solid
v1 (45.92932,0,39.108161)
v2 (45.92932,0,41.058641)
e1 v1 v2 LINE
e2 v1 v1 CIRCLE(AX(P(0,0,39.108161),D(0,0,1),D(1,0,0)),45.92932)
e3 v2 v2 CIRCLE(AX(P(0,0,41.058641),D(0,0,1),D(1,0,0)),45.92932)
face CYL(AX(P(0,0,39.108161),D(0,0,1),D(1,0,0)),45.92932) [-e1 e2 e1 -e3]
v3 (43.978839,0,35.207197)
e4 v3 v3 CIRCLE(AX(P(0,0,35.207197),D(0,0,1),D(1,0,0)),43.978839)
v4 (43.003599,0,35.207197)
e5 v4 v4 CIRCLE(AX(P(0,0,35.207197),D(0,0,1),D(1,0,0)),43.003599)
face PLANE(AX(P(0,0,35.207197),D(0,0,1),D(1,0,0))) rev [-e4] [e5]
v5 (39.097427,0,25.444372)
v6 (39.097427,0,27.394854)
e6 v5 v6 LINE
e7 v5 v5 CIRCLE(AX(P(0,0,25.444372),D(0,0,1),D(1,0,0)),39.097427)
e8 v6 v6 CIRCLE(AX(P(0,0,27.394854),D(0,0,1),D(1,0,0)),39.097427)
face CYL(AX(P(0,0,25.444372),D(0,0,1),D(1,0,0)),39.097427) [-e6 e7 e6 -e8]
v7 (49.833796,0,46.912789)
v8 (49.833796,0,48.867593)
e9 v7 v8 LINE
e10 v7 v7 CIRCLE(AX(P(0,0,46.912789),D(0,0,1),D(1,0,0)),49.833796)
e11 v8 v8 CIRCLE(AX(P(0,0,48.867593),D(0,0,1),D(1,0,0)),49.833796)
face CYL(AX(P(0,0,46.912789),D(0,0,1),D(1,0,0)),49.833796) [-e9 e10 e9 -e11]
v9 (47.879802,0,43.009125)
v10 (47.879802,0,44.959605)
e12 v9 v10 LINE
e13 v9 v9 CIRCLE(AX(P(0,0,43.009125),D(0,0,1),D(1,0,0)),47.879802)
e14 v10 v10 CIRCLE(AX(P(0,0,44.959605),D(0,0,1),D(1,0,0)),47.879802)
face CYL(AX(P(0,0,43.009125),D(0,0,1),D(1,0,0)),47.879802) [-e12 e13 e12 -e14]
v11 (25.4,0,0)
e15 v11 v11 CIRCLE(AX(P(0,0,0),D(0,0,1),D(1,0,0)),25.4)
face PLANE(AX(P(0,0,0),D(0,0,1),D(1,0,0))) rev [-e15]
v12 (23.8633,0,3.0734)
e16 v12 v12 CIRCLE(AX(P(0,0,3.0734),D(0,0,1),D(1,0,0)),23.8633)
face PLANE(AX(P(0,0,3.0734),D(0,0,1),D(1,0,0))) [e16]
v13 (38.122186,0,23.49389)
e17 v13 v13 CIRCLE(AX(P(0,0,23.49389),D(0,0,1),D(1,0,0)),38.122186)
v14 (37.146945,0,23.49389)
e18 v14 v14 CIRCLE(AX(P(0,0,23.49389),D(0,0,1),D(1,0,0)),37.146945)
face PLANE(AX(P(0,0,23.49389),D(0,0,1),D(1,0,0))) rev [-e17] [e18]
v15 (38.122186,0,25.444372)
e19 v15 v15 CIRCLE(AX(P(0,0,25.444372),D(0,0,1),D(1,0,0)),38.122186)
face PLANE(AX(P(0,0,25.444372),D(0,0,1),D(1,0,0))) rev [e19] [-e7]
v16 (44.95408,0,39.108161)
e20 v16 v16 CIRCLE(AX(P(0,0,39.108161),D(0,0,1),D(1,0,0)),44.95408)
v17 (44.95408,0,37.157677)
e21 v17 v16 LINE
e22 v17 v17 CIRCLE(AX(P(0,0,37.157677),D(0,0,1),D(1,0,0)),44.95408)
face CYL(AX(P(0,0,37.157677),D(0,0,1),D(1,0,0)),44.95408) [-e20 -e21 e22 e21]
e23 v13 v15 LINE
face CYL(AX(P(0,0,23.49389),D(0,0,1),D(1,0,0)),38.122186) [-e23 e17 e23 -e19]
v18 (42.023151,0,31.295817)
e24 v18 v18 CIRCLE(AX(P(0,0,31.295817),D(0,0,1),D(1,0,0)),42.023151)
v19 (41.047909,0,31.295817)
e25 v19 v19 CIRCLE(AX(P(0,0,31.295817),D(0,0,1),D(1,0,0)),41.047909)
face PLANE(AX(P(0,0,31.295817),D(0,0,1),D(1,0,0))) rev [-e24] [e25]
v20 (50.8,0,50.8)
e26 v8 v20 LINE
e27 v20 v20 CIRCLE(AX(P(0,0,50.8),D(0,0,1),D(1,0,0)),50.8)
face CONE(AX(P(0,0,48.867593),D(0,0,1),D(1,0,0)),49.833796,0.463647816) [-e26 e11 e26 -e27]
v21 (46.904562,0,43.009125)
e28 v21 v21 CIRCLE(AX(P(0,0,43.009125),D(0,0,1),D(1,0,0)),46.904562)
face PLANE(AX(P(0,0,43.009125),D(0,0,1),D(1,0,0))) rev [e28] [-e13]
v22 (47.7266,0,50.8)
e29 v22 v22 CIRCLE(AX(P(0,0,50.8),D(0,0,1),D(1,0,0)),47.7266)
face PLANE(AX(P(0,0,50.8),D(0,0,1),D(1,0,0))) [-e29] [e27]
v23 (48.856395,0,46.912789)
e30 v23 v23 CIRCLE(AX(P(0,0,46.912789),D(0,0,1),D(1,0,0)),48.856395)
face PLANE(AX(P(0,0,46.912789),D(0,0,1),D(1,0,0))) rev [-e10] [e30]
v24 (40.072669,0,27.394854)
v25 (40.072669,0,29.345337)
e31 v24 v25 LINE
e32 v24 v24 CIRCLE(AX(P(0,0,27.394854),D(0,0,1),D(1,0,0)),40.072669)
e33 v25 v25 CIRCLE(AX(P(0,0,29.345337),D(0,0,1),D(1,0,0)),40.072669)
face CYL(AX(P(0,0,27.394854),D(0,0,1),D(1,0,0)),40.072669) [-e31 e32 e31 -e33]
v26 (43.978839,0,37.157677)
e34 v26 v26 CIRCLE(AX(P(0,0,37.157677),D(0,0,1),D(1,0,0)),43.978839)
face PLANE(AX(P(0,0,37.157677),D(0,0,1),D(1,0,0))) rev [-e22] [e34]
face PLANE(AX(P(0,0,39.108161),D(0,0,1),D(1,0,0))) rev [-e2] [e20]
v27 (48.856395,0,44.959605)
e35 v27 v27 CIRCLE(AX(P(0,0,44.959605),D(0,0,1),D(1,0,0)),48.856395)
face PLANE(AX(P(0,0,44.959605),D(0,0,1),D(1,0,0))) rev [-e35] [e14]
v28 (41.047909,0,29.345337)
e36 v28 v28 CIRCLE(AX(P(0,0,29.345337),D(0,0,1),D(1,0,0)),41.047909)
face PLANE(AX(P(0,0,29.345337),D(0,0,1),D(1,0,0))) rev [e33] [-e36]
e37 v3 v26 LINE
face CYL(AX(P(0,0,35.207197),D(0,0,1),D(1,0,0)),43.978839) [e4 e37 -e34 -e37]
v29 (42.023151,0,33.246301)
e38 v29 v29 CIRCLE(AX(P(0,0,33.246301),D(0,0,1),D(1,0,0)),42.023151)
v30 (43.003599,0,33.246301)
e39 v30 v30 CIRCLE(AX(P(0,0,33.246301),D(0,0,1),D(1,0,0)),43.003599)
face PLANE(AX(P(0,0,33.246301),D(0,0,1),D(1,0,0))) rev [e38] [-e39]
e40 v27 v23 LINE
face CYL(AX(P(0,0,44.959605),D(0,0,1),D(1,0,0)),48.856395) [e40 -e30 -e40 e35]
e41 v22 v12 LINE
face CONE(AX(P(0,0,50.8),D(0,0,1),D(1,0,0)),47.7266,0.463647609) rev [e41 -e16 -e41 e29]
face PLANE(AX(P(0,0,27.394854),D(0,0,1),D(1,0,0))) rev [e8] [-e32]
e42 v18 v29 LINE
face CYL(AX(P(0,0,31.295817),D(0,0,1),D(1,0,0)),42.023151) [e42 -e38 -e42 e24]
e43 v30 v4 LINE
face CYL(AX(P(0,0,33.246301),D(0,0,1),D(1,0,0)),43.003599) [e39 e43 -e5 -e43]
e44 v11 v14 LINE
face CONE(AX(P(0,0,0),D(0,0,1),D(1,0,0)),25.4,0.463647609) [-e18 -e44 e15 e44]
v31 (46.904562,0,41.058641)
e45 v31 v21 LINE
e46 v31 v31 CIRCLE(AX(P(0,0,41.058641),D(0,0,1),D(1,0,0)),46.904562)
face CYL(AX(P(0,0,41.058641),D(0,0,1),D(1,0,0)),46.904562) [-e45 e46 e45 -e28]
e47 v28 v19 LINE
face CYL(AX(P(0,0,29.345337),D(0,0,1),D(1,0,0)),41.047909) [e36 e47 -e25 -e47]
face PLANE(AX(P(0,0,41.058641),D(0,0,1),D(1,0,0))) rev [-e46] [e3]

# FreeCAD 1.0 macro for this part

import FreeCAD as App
import Part
import Sketcher

V = App.Vector
Q = App.Units.Quantity


def add_polygon(sketch, points):
    """Adds a closed chain of lines whose ends are joined by coincident constraints."""
    first, n = sketch.GeometryCount, len(points)
    for a, b in zip(points, points[1:] + points[:1]):
        sketch.addGeometry(Part.LineSegment(App.Vector(*a, 0), App.Vector(*b, 0)), False)
    for i in range(n):
        sketch.addConstraint(Sketcher.Constraint("Coincident", first + i, 2, first + (i + 1) % n, 1))

doc = App.newDocument("Part")
params = doc.addObject("Spreadsheet::Sheet", "Params")
for row, (alias, value) in enumerate([
    ("sketch1_width", "1 in"),
    ("sketch1_width2", "0.121 in"),
    ("revolution_angle", "360 deg"),
], start=1):
    params.set(f"A{row}", alias)
    params.set(f"B{row}", "=" + value)
    params.setAlias(f"B{row}", alias)

body = doc.addObject("PartDesign::Body", "Body")

sketch1 = body.newObject("Sketcher::SketchObject", "Sketch")
sketch1.AttachmentSupport = (doc.getObject("XZ_Plane"), [""])
sketch1.MapMode = "FlatFace"
add_polygon(sketch1, [(47.879802, 43.009125), (47.879802, 44.959605), (48.856395, 44.959605), (48.856395, 46.912789), (49.833796, 46.912789), (49.833796, 48.867593), (50.8, 50.8), (47.7266, 50.8), (23.8633, 3.0734), (0, 3.0734), (0, 0), (25.4, 0), (37.146945, 23.49389), (38.122186, 23.49389), (38.122186, 25.444372), (39.097427, 25.444372), (39.097427, 27.394854), (40.072669, 27.394854), (40.072669, 29.345337), (41.047909, 29.345337), (41.047909, 31.295817), (42.023151, 31.295817), (42.023151, 33.246301), (43.003599, 33.246301), (43.003599, 35.207197), (43.978839, 35.207197), (43.978839, 37.157677), (44.95408, 37.157677), (44.95408, 39.108161), (45.92932, 39.108161), (45.92932, 41.058641), (46.904562, 41.058641), (46.904562, 43.009125)])
sketch1.addConstraint([
    Sketcher.Constraint("Vertical", 0),
    Sketcher.Constraint("Horizontal", 1),
    Sketcher.Constraint("Vertical", 2),
    Sketcher.Constraint("Horizontal", 3),
    Sketcher.Constraint("Vertical", 4),
    Sketcher.Constraint("Horizontal", 6),
    Sketcher.Constraint("Horizontal", 8),
    Sketcher.Constraint("Vertical", 9),
    Sketcher.Constraint("Horizontal", 10),
    Sketcher.Constraint("Horizontal", 12),
    Sketcher.Constraint("Vertical", 13),
    Sketcher.Constraint("Horizontal", 14),
    Sketcher.Constraint("Vertical", 15),
    Sketcher.Constraint("Horizontal", 16),
    Sketcher.Constraint("Vertical", 17),
    Sketcher.Constraint("Horizontal", 18),
    Sketcher.Constraint("Vertical", 19),
    Sketcher.Constraint("Horizontal", 20),
    Sketcher.Constraint("Vertical", 21),
    Sketcher.Constraint("Horizontal", 22),
    Sketcher.Constraint("Vertical", 23),
    Sketcher.Constraint("Horizontal", 24),
    Sketcher.Constraint("Vertical", 25),
    Sketcher.Constraint("Horizontal", 26),
    Sketcher.Constraint("Vertical", 27),
    Sketcher.Constraint("Horizontal", 28),
    Sketcher.Constraint("Vertical", 29),
    Sketcher.Constraint("Horizontal", 30),
    Sketcher.Constraint("Vertical", 31),
    Sketcher.Constraint("Horizontal", 32),
    Sketcher.Constraint("Coincident", 9, 2, -1, 1),
    Sketcher.Constraint("Parallel", 5, 7),
    Sketcher.Constraint("Parallel", 7, 11),
    Sketcher.Constraint("Equal", 12, 14),
    Sketcher.Constraint("Equal", 14, 16),
    Sketcher.Constraint("Equal", 16, 18),
    Sketcher.Constraint("Equal", 16, 20),
    Sketcher.Constraint("Equal", 18, 24),
    Sketcher.Constraint("Equal", 24, 26),
    Sketcher.Constraint("Equal", 26, 28),
    Sketcher.Constraint("Equal", 26, 30),
    Sketcher.Constraint("Equal", 28, 32),
    Sketcher.Constraint("Equal", 6, 9),
    Sketcher.Constraint("Equal", 0, 13),
    Sketcher.Constraint("Equal", 13, 15),
    Sketcher.Constraint("Equal", 15, 17),
    Sketcher.Constraint("Equal", 15, 19),
    Sketcher.Constraint("Equal", 17, 21),
    Sketcher.Constraint("Equal", 19, 25),
    Sketcher.Constraint("Equal", 21, 27),
    Sketcher.Constraint("Equal", 25, 29),
    Sketcher.Constraint("Equal", 27, 31),
    Sketcher.Constraint("DistanceX", 10, 1, 10, 2, Q("1 in")),
    Sketcher.Constraint("DistanceX", -1, 1, 5, 2, Q("2 in")),
    Sketcher.Constraint("DistanceY", -1, 1, 5, 2, Q("2 in")),
    Sketcher.Constraint("DistanceX", 6, 2, 6, 1, Q("0.121 in")),
    Sketcher.Constraint("DistanceX", 8, 2, 8, 1, Q("0.9395 in")),
    Sketcher.Constraint("DistanceX", 3, 1, 3, 2, Q("0.977401 mm")),
    Sketcher.Constraint("DistanceX", 12, 1, 12, 2, Q("0.975241 mm")),
    Sketcher.Constraint("DistanceX", 22, 1, 22, 2, Q("0.980448 mm")),
    Sketcher.Constraint("DistanceY", 0, 1, 0, 2, Q("1.95048 mm")),
    Sketcher.Constraint("DistanceX", -1, 1, 0, 2, Q("47.879802 mm")),
    Sketcher.Constraint("DistanceY", 11, 2, 2, 2, Q("23.418899 mm")),
    Sketcher.Constraint("DistanceX", 1, 1, 1, 2, Q("0.976593 mm")),
    Sketcher.Constraint("DistanceY", 2, 1, 2, 2, Q("1.953184 mm")),
])
sketch1.setExpression("Constraints[85]", "Params.sketch1_width")
sketch1.setExpression("Constraints[88]", "Params.sketch1_width2")
revolution = body.newObject("PartDesign::Revolution", "Revolution")
revolution.Profile = sketch1
revolution.ReferenceAxis = (sketch1, ["V_Axis"])
revolution.setExpression("Angle", "Params.revolution_angle")

doc.recompute()
